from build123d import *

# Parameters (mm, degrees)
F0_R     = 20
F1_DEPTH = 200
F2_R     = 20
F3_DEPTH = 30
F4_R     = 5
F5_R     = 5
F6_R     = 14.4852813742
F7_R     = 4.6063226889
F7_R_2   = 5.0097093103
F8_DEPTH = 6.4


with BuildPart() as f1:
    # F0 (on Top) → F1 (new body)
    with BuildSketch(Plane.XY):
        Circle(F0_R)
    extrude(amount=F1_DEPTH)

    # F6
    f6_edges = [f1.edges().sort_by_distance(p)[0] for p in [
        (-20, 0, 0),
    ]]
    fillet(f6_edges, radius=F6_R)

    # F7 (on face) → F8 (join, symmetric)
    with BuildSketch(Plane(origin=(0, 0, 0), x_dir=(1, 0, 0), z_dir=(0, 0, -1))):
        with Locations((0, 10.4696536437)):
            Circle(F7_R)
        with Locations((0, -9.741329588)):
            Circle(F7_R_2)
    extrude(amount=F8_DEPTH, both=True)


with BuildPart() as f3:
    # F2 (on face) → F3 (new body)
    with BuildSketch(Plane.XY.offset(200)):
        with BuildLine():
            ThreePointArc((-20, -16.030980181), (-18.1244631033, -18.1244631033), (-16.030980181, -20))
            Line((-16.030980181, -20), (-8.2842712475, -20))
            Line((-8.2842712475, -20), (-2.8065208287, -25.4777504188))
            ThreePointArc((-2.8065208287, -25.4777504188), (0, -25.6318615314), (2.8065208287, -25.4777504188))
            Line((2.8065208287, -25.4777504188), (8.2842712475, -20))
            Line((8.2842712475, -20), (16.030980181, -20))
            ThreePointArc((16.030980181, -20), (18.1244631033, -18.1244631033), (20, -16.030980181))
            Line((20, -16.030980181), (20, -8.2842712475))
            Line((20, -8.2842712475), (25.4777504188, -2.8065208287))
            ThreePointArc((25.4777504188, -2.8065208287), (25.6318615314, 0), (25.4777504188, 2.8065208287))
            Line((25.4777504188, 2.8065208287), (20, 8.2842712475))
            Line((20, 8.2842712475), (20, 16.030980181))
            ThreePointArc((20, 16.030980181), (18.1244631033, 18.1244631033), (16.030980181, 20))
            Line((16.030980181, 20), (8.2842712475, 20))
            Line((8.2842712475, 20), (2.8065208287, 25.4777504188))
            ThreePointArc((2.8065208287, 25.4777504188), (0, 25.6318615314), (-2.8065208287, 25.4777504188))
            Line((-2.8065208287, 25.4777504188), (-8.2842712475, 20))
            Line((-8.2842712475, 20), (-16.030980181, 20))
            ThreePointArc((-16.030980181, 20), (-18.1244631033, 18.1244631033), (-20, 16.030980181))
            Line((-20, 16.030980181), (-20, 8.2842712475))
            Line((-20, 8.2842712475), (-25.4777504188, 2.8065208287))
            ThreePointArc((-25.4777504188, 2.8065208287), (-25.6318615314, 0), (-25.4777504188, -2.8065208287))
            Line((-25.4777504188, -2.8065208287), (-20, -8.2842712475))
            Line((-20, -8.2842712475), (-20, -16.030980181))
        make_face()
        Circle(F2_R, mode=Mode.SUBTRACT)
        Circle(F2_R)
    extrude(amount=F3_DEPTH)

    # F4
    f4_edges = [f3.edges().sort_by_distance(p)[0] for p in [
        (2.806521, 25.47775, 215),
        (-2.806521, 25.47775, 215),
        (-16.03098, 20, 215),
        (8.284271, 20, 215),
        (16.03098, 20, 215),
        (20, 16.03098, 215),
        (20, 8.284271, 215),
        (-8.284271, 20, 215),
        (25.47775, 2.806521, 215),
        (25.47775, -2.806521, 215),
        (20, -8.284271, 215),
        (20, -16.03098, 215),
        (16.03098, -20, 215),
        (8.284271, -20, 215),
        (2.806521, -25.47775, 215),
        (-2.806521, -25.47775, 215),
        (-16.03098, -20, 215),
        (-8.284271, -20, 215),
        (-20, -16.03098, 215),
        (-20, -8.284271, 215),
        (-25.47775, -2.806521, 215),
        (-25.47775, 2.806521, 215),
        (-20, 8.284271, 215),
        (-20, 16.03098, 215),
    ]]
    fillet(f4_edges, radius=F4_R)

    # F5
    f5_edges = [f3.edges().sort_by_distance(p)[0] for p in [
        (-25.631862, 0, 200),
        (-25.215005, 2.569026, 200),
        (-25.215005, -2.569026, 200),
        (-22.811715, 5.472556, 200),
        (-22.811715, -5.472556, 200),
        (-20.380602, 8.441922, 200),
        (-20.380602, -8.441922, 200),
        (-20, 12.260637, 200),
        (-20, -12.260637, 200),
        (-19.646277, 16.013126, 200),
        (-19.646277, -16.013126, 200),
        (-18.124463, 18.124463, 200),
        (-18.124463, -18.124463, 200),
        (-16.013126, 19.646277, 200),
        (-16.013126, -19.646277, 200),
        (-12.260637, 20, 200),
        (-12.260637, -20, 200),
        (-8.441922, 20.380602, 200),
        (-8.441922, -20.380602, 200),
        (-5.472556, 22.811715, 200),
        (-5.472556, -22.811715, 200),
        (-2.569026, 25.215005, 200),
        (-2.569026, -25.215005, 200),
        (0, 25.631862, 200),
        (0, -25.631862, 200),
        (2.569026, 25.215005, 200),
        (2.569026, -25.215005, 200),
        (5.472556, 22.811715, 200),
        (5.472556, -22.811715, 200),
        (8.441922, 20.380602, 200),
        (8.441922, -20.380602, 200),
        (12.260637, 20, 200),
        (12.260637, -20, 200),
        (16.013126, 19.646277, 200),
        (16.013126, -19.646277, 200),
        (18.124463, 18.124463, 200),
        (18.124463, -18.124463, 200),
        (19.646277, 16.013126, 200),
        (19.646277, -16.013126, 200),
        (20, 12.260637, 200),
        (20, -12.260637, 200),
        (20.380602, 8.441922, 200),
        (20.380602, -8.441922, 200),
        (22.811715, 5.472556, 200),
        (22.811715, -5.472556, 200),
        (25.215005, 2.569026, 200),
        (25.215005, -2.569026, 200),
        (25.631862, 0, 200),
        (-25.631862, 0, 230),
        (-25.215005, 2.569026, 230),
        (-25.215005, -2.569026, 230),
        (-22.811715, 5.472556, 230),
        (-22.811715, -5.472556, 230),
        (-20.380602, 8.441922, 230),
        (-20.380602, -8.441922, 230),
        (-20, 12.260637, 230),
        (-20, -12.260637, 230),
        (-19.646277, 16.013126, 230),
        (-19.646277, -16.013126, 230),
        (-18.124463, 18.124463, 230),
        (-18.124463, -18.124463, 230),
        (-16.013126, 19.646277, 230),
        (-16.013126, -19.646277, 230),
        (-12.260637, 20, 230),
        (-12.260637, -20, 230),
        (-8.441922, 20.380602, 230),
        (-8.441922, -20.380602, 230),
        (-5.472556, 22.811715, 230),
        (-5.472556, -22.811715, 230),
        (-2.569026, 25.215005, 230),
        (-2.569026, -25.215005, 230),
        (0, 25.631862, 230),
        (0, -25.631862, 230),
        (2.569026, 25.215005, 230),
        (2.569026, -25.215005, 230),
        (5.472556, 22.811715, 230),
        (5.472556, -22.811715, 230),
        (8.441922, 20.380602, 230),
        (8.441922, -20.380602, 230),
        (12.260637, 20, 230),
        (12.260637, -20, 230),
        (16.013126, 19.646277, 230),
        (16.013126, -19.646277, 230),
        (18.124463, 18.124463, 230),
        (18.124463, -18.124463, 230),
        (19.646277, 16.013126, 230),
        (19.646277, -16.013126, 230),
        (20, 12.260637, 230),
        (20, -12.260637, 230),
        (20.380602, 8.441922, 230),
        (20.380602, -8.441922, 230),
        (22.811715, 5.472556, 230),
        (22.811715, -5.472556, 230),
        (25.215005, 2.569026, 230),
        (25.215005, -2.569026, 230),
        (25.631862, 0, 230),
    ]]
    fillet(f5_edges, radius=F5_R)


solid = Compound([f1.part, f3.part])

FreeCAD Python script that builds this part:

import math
import FreeCAD as App
import Part
import Sketcher

V = App.Vector
Q = App.Units.Quantity


def edges_at(feature, points):
    """Names of the edges that pass closest to the given points."""
    edges = feature.Shape.Edges
    near = lambda p: min(range(len(edges)), key=lambda i: edges[i].distToShape(Part.Vertex(*p))[0])
    return sorted({f"Edge{near(p) + 1}" for p in points})

doc = App.newDocument("Part")
params = doc.addObject("Spreadsheet::Sheet", "Params")
for row, (alias, value) in enumerate([
    ("sketch1_diameter", "40 mm"),
    ("pad1_length", "200 mm"),
    ("fillet_radius", "14.485281 mm"),
    ("pad2_length", "12.8 mm"),
    ("pad3_length", "30 mm"),
    ("fillet2_radius", "5 mm"),
    ("fillet3_radius", "5 mm"),
], start=1):
    params.set(f"A{row}", alias)
    params.set(f"B{row}", "=" + value)
    params.setAlias(f"B{row}", alias)

body = doc.addObject("PartDesign::Body", "Body")

# Sketch on XY plane
sketch1 = body.newObject("Sketcher::SketchObject", "Sketch")
sketch1.AttachmentSupport = (doc.getObject("XY_Plane"), [""])
sketch1.MapMode = "FlatFace"
sketch1.addGeometry(Part.Circle(V(0, 0, 0), V(0, 0, 1), 20), False)
sketch1.addConstraint([
    Sketcher.Constraint("Coincident", 0, 3, -1, 1),
    Sketcher.Constraint("Diameter", 0, Q("40 mm")),
])
sketch1.setExpression("Constraints[1]", "Params.sketch1_diameter")
pad1 = body.newObject("PartDesign::Pad", "Pad")
pad1.Profile = sketch1
pad1.setExpression("Length", "Params.pad1_length")
doc.recompute()

fillet = body.newObject("PartDesign::Fillet", "Fillet")
fillet.Base = (pad1, edges_at(pad1, [(-20, 0, 0)]))
fillet.setExpression("Radius", "Params.fillet_radius")

# Sketch on XY plane
sketch2 = body.newObject("Sketcher::SketchObject", "Sketch001")
sketch2.AttachmentSupport = (doc.getObject("XY_Plane"), [""])
sketch2.MapMode = "FlatFace"
sketch2.addGeometry([
    Part.Circle(V(0, -10.5, 0), V(0, 0, 1), 4.6),
    Part.Circle(V(0, 9.7, 0), V(0, 0, 1), 5),
], False)
sketch2.addConstraint([
    Sketcher.Constraint("PointOnObject", 0, 3, -2),
    Sketcher.Constraint("PointOnObject", 1, 3, -2),
    Sketcher.Constraint("Diameter", 1, Q("10.019419 mm")),
    Sketcher.Constraint("Diameter", 0, Q("9.212645 mm")),
    Sketcher.Constraint("DistanceY", -1, 1, 1, 3, Q("9.74133 mm")),
    Sketcher.Constraint("DistanceY", 0, 3, -1, 1, Q("10.469654 mm")),
])
pad2 = body.newObject("PartDesign::Pad", "Pad001")
pad2.Profile = sketch2
pad2.setExpression("Length", "Params.pad2_length")
pad2.Midplane = True
body2 = doc.addObject("PartDesign::Body", "Body001")

# Sketch on XY plane
sketch3 = body2.newObject("Sketcher::SketchObject", "Sketch002")
sketch3.AttachmentSupport = (doc.getObject("XY_Plane001"), [""])
sketch3.MapMode = "FlatFace"
sketch3.AttachmentOffset = App.Placement(V(0, 0, 200), App.Rotation())
sketch3.addGeometry([
    Part.ArcOfCircle(Part.Circle(V(0, 0, 0), V(0, 0, 1), 26), math.radians(-141.29), math.radians(-128.71)),  # 0
    Part.LineSegment(V(-16, -20, 0), V(-8, -20, 0)),  # 1
    Part.LineSegment(V(-8, -20, 0), V(-3, -25, 0)),  # 2
    Part.ArcOfCircle(Part.Circle(V(0, 0, 0), V(0, 0, 1), 26), math.radians(-96.29), math.radians(-83.71)),  # 3
    Part.LineSegment(V(3, -25, 0), V(8, -20, 0)),  # 4
    Part.LineSegment(V(8, -20, 0), V(16, -20, 0)),  # 5
    Part.ArcOfCircle(Part.Circle(V(0, 0, 0), V(0, 0, 1), 26), math.radians(-51.29), math.radians(-38.71)),  # 6
    Part.LineSegment(V(20, -16, 0), V(20, -8, 0)),  # 7
    Part.LineSegment(V(20, -8, 0), V(25, -3, 0)),  # 8
    Part.ArcOfCircle(Part.Circle(V(0, 0, 0), V(0, 0, 1), 26), math.radians(-6.29), math.radians(6.29)),  # 9
    Part.LineSegment(V(25, 3, 0), V(20, 8, 0)),  # 10
    Part.LineSegment(V(20, 8, 0), V(20, 16, 0)),  # 11
    Part.ArcOfCircle(Part.Circle(V(0, 0, 0), V(0, 0, 1), 26), math.radians(38.71), math.radians(51.29)),  # 12
    Part.LineSegment(V(16, 20, 0), V(8, 20, 0)),  # 13
    Part.LineSegment(V(8, 20, 0), V(3, 25, 0)),  # 14
    Part.ArcOfCircle(Part.Circle(V(0, 0, 0), V(0, 0, 1), 26), math.radians(83.71), math.radians(96.29)),  # 15
    Part.LineSegment(V(-3, 25, 0), V(-8, 20, 0)),  # 16
    Part.LineSegment(V(-8, 20, 0), V(-16, 20, 0)),  # 17
    Part.ArcOfCircle(Part.Circle(V(0, 0, 0), V(0, 0, 1), 26), math.radians(128.71), math.radians(141.29)),  # 18
    Part.LineSegment(V(-20, 16, 0), V(-20, 8, 0)),  # 19
    Part.LineSegment(V(-20, 8, 0), V(-25, 3, 0)),  # 20
    Part.ArcOfCircle(Part.Circle(V(0, 0, 0), V(0, 0, 1), 26), math.radians(173.71), math.radians(186.29)),  # 21
    Part.LineSegment(V(-25, -3, 0), V(-20, -8, 0)),  # 22
    Part.LineSegment(V(-20, -8, 0), V(-20, -16, 0)),  # 23
], False)
sketch3.addConstraint([
    Sketcher.Constraint("Coincident", 0, 2, 1, 1),
    Sketcher.Constraint("Coincident", 1, 2, 2, 1),
    Sketcher.Constraint("Coincident", 2, 2, 3, 1),
    Sketcher.Constraint("Coincident", 3, 2, 4, 1),
    Sketcher.Constraint("Coincident", 4, 2, 5, 1),
    Sketcher.Constraint("Coincident", 5, 2, 6, 1),
    Sketcher.Constraint("Coincident", 6, 2, 7, 1),
    Sketcher.Constraint("Coincident", 7, 2, 8, 1),
    Sketcher.Constraint("Coincident", 8, 2, 9, 1),
    Sketcher.Constraint("Coincident", 9, 2, 10, 1),
    Sketcher.Constraint("Coincident", 10, 2, 11, 1),
    Sketcher.Constraint("Coincident", 11, 2, 12, 1),
    Sketcher.Constraint("Coincident", 12, 2, 13, 1),
    Sketcher.Constraint("Coincident", 13, 2, 14, 1),
    Sketcher.Constraint("Coincident", 14, 2, 15, 1),
    Sketcher.Constraint("Coincident", 15, 2, 16, 1),
    Sketcher.Constraint("Coincident", 16, 2, 17, 1),
    Sketcher.Constraint("Coincident", 17, 2, 18, 1),
    Sketcher.Constraint("Coincident", 18, 2, 19, 1),
    Sketcher.Constraint("Coincident", 19, 2, 20, 1),
    Sketcher.Constraint("Coincident", 20, 2, 21, 1),
    Sketcher.Constraint("Coincident", 21, 2, 22, 1),
    Sketcher.Constraint("Coincident", 22, 2, 23, 1),
    Sketcher.Constraint("Coincident", 23, 2, 0, 1),
    Sketcher.Constraint("Horizontal", 1),
    Sketcher.Constraint("Horizontal", 5),
    Sketcher.Constraint("Vertical", 7),
    Sketcher.Constraint("Vertical", 11),
    Sketcher.Constraint("Horizontal", 13),
    Sketcher.Constraint("Horizontal", 17),
    Sketcher.Constraint("Vertical", 19),
    Sketcher.Constraint("Vertical", 23),
    Sketcher.Constraint("Coincident", 0, 3, -1, 1),
    Sketcher.Constraint("Coincident", 3, 3, -1, 1),
    Sketcher.Constraint("Coincident", 6, 3, -1, 1),
    Sketcher.Constraint("Coincident", 9, 3, -1, 1),
    Sketcher.Constraint("Coincident", 12, 3, -1, 1),
    Sketcher.Constraint("Coincident", 15, 3, -1, 1),
    Sketcher.Constraint("Coincident", 18, 3, -1, 1),
    Sketcher.Constraint("Coincident", 21, 3, -1, 1),
    Sketcher.Constraint("Equal", 0, 3),
    Sketcher.Constraint("Equal", 3, 6),
    Sketcher.Constraint("Equal", 6, 9),
    Sketcher.Constraint("Equal", 9, 12),
    Sketcher.Constraint("Equal", 12, 15),
    Sketcher.Constraint("Equal", 15, 18),
    Sketcher.Constraint("Equal", 18, 21),
    Sketcher.Constraint("Symmetric", 1, 2, 13, 2, -1, 1),
    Sketcher.Constraint("Symmetric", 4, 2, 16, 2, -1, 1),
    Sketcher.Constraint("Symmetric", 7, 2, 19, 2, -1, 1),
    Sketcher.Constraint("Symmetric", 10, 2, 22, 2, -1, 1),
    Sketcher.Constraint("Symmetric", 1, 2, 4, 2, -2),
    Sketcher.Constraint("Symmetric", 10, 2, 19, 2, -2),
    Sketcher.Constraint("Perpendicular", 2, 4),
    Sketcher.Constraint("Parallel", 4, 8),
    Sketcher.Constraint("Perpendicular", 8, 10),
    Sketcher.Constraint("Parallel", 10, 14),
    Sketcher.Constraint("Perpendicular", 14, 16),
    Sketcher.Constraint("Parallel", 16, 20),
    Sketcher.Constraint("Perpendicular", 20, 22),
    Sketcher.Constraint("Horizontal", 2, 2, 3, 2),
    Sketcher.Constraint("Equal", 17, 7),
    Sketcher.Constraint("Equal", 4, 8),
    Sketcher.Constraint("DistanceY", 0, 2, -1, 1, Q("20 mm")),
    Sketcher.Constraint("Radius", 0, Q("25.631862 mm")),
    Sketcher.Constraint("DistanceX", 1, 1, 1, 2, Q("7.746709 mm")),
])
pad3 = body2.newObject("PartDesign::Pad", "Pad002")
pad3.Profile = sketch3
pad3.setExpression("Length", "Params.pad3_length")
doc.recompute()

fillet2 = body2.newObject("PartDesign::Fillet", "Fillet001")
fillet2.Base = (pad3, edges_at(pad3, [
    (2.807, 25.478, 215),
    (-2.807, 25.478, 215),
    (-16.031, 20, 215),
    (8.284, 20, 215),
    (16.031, 20, 215),
    (20, 16.031, 215),
    (20, 8.284, 215),
    (-8.284, 20, 215),
    (25.478, 2.807, 215),
    (25.478, -2.807, 215),
    (20, -8.284, 215),
    (20, -16.031, 215),
    (16.031, -20, 215),
    (8.284, -20, 215),
    (2.807, -25.478, 215),
    (-2.807, -25.478, 215),
    (-16.031, -20, 215),
    (-8.284, -20, 215),
    (-20, -16.031, 215),
    (-20, -8.284, 215),
    (-25.478, -2.807, 215),
    (-25.478, 2.807, 215),
    (-20, 8.284, 215),
    (-20, 16.031, 215),
]))
fillet2.setExpression("Radius", "Params.fillet2_radius")
doc.recompute()

fillet3 = body2.newObject("PartDesign::Fillet", "Fillet002")
fillet3.Base = (fillet2, edges_at(fillet2, [
    (-25.632, 0, 200),
    (-25.215, 2.569, 200),
    (-25.215, -2.569, 200),
    (-22.812, 5.473, 200),
    (-22.812, -5.473, 200),
    (-20.381, 8.442, 200),
    (-20.381, -8.442, 200),
    (-20, 12.261, 200),
    (-20, -12.261, 200),
    (-19.646, 16.013, 200),
    (-19.646, -16.013, 200),
    (-18.124, 18.124, 200),
    (-18.124, -18.124, 200),
    (-16.013, 19.646, 200),
    (-16.013, -19.646, 200),
    (-12.261, 20, 200),
    (-12.261, -20, 200),
    (-8.442, 20.381, 200),
    (-8.442, -20.381, 200),
    (-5.473, 22.812, 200),
    (-5.473, -22.812, 200),
    (-2.569, 25.215, 200),
    (-2.569, -25.215, 200),
    (0, 25.632, 200),
    (0, -25.632, 200),
    (2.569, 25.215, 200),
    (2.569, -25.215, 200),
    (5.473, 22.812, 200),
    (5.473, -22.812, 200),
    (8.442, 20.381, 200),
    (8.442, -20.381, 200),
    (12.261, 20, 200),
    (12.261, -20, 200),
    (16.013, 19.646, 200),
    (16.013, -19.646, 200),
    (18.124, 18.124, 200),
    (18.124, -18.124, 200),
    (19.646, 16.013, 200),
    (19.646, -16.013, 200),
    (20, 12.261, 200),
    (20, -12.261, 200),
    (20.381, 8.442, 200),
    (20.381, -8.442, 200),
    (22.812, 5.473, 200),
    (22.812, -5.473, 200),
    (25.215, 2.569, 200),
    (25.215, -2.569, 200),
    (25.632, 0, 200),
    (-25.632, 0, 230),
    (-25.215, 2.569, 230),
    (-25.215, -2.569, 230),
    (-22.812, 5.473, 230),
    (-22.812, -5.473, 230),
    (-20.381, 8.442, 230),
    (-20.381, -8.442, 230),
    (-20, 12.261, 230),
    (-20, -12.261, 230),
    (-19.646, 16.013, 230),
    (-19.646, -16.013, 230),
    (-18.124, 18.124, 230),
    (-18.124, -18.124, 230),
    (-16.013, 19.646, 230),
    (-16.013, -19.646, 230),
    (-12.261, 20, 230),
    (-12.261, -20, 230),
    (-8.442, 20.381, 230),
    (-8.442, -20.381, 230),
    (-5.473, 22.812, 230),
    (-5.473, -22.812, 230),
    (-2.569, 25.215, 230),
    (-2.569, -25.215, 230),
    (0, 25.632, 230),
    (0, -25.632, 230),
    (2.569, 25.215, 230),
    (2.569, -25.215, 230),
    (5.473, 22.812, 230),
    (5.473, -22.812, 230),
    (8.442, 20.381, 230),
    (8.442, -20.381, 230),
    (12.261, 20, 230),
    (12.261, -20, 230),
    (16.013, 19.646, 230),
    (16.013, -19.646, 230),
    (18.124, 18.124, 230),
    (18.124, -18.124, 230),
    (19.646, 16.013, 230),
    (19.646, -16.013, 230),
    (20, 12.261, 230),
    (20, -12.261, 230),
    (20.381, 8.442, 230),
    (20.381, -8.442, 230),
    (22.812, 5.473, 230),
    (22.812, -5.473, 230),
    (25.215, 2.569, 230),
    (25.215, -2.569, 230),
    (25.632, 0, 230),
]))
fillet3.setExpression("Radius", "Params.fillet3_radius")

doc.recompute()
